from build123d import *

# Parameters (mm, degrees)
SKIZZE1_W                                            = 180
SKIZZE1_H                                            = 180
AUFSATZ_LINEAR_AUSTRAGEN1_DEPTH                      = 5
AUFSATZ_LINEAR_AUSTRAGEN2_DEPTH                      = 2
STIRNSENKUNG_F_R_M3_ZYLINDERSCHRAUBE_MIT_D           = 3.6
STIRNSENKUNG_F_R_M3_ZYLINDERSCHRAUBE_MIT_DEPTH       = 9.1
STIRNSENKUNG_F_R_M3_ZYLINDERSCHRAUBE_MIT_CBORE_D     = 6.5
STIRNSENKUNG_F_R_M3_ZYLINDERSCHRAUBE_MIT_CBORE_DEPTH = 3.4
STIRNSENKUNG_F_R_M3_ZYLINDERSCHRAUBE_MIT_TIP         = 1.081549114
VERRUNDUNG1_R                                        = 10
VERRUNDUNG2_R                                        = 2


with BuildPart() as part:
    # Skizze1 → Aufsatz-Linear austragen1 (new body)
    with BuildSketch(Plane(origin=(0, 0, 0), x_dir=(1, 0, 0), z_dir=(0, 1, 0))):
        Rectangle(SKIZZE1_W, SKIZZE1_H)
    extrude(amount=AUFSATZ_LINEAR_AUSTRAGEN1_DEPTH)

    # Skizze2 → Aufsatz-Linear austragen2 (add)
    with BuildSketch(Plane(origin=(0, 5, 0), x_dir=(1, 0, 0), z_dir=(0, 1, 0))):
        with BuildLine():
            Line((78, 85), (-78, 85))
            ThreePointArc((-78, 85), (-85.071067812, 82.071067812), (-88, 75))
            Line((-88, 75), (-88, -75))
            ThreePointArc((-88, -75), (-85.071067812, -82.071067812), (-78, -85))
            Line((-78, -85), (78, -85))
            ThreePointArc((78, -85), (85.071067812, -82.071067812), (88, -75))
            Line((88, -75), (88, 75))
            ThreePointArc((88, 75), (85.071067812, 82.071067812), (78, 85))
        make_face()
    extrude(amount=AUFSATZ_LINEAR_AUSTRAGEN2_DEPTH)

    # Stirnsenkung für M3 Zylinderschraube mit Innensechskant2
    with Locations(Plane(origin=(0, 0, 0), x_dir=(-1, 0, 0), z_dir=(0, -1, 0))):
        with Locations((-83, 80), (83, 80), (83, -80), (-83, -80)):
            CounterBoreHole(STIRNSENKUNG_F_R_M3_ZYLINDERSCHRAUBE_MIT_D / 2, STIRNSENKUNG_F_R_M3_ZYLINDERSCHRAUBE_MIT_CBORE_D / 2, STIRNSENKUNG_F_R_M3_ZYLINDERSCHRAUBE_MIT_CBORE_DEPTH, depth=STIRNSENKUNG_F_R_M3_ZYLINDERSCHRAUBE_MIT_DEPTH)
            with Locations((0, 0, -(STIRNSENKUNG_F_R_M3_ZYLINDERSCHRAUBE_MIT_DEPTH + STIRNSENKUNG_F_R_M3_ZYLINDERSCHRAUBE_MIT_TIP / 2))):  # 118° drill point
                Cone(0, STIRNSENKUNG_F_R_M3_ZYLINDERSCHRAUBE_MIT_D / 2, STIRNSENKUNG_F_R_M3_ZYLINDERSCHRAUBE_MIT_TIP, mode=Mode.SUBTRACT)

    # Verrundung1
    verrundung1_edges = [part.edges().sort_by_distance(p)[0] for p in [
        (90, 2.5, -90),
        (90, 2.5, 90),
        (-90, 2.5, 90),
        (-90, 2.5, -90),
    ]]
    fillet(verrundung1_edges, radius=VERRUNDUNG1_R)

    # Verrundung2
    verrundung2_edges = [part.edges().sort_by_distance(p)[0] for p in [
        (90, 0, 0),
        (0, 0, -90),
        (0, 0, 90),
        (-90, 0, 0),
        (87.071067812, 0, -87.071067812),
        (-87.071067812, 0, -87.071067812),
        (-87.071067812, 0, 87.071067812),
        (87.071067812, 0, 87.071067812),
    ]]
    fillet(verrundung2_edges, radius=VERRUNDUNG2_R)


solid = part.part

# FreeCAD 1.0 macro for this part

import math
import FreeCAD as App
import Part
import Sketcher


def edges_at(feature, points):
    """Names of the edges that pass closest to the given points."""
    edges = feature.Shape.Edges
    near = lambda p: min(range(len(edges)), key=lambda i: edges[i].distToShape(Part.Vertex(*p))[0])
    return sorted({f"Edge{near(p) + 1}" for p in points})

doc = App.newDocument("Part")
body = doc.addObject("PartDesign::Body", "Body")

sketch1 = doc.addObject("Sketcher::SketchObject", "Sketch")
body.addObject(sketch1)
sketch1.AttachmentSupport = (doc.XZ_Plane, [""])
sketch1.MapMode = "FlatFace"
sketch1.addGeometry(Part.LineSegment(App.Vector(-90, -90, 0), App.Vector(-90, 90, 0)), False)
sketch1.addGeometry(Part.LineSegment(App.Vector(-90, 90, 0), App.Vector(90, 90, 0)), False)
sketch1.addGeometry(Part.LineSegment(App.Vector(90, 90, 0), App.Vector(90, -90, 0)), False)
sketch1.addGeometry(Part.LineSegment(App.Vector(90, -90, 0), App.Vector(-90, -90, 0)), False)
sketch1.addConstraint(Sketcher.Constraint("Coincident", 0, 2, 1, 1))
sketch1.addConstraint(Sketcher.Constraint("Coincident", 1, 2, 2, 1))
sketch1.addConstraint(Sketcher.Constraint("Coincident", 2, 2, 3, 1))
sketch1.addConstraint(Sketcher.Constraint("Coincident", 3, 2, 0, 1))
sketch1.addConstraint(Sketcher.Constraint("Vertical", 0))
sketch1.addConstraint(Sketcher.Constraint("Horizontal", 1))
sketch1.addConstraint(Sketcher.Constraint("Vertical", 2))
sketch1.addConstraint(Sketcher.Constraint("Horizontal", 3))
sketch1.addConstraint(Sketcher.Constraint("Symmetric", 0, 2, 2, 2, -1, 1))
sketch1.addConstraint(Sketcher.Constraint("Equal", 3, 0))
sketch1.addConstraint(Sketcher.Constraint("DistanceX", 1, 1, 1, 2, 180.0))
pad1 = doc.addObject("PartDesign::Pad", "Pad")
body.addObject(pad1)
pad1.Profile = sketch1
pad1.Length = 5
pad1.Reversed = True

sketch2 = doc.addObject("Sketcher::SketchObject", "Sketch001")
body.addObject(sketch2)
sketch2.AttachmentSupport = (doc.XZ_Plane, [""])
sketch2.MapMode = "FlatFace"
sketch2.AttachmentOffset = App.Placement(App.Vector(0, 0, -5), App.Rotation())
sketch2.addGeometry(Part.LineSegment(App.Vector(78, -85, 0), App.Vector(-78, -85, 0)), False)
sketch2.addGeometry(Part.ArcOfCircle(Part.Circle(App.Vector(-78, -75, 0), App.Vector(0, 0, 1), 10), math.radians(180), math.radians(270)), False)
sketch2.addGeometry(Part.LineSegment(App.Vector(-88, -75, 0), App.Vector(-88, 75, 0)), False)
sketch2.addGeometry(Part.ArcOfCircle(Part.Circle(App.Vector(-78, 75, 0), App.Vector(0, 0, 1), 10), math.radians(90), math.radians(180)), False)
sketch2.addGeometry(Part.LineSegment(App.Vector(-78, 85, 0), App.Vector(78, 85, 0)), False)
sketch2.addGeometry(Part.ArcOfCircle(Part.Circle(App.Vector(78, 75, 0), App.Vector(0, 0, 1), 10), math.radians(0), math.radians(90)), False)
sketch2.addGeometry(Part.LineSegment(App.Vector(88, 75, 0), App.Vector(88, -75, 0)), False)
sketch2.addGeometry(Part.ArcOfCircle(Part.Circle(App.Vector(78, -75, 0), App.Vector(0, 0, 1), 10), math.radians(-90), math.radians(0)), False)
sketch2.addConstraint(Sketcher.Constraint("Tangent", 0, 2, 1, 2))
sketch2.addConstraint(Sketcher.Constraint("Tangent", 1, 1, 2, 1))
sketch2.addConstraint(Sketcher.Constraint("Tangent", 2, 2, 3, 2))
sketch2.addConstraint(Sketcher.Constraint("Tangent", 3, 1, 4, 1))
sketch2.addConstraint(Sketcher.Constraint("Tangent", 4, 2, 5, 2))
sketch2.addConstraint(Sketcher.Constraint("Tangent", 5, 1, 6, 1))
sketch2.addConstraint(Sketcher.Constraint("Tangent", 6, 2, 7, 2))
sketch2.addConstraint(Sketcher.Constraint("Tangent", 7, 1, 0, 1))
sketch2.addConstraint(Sketcher.Constraint("Horizontal", 0))
sketch2.addConstraint(Sketcher.Constraint("Vertical", 2))
sketch2.addConstraint(Sketcher.Constraint("Horizontal", 4))
sketch2.addConstraint(Sketcher.Constraint("Vertical", 6))
sketch2.addConstraint(Sketcher.Constraint("Equal", 1, 3))
sketch2.addConstraint(Sketcher.Constraint("Equal", 3, 5))
sketch2.addConstraint(Sketcher.Constraint("Equal", 5, 7))
sketch2.addConstraint(Sketcher.Constraint("Symmetric", 1, 3, 5, 3, -1, 1))
sketch2.addConstraint(Sketcher.Constraint("Radius", 1, 10.0))
sketch2.addConstraint(Sketcher.Constraint("DistanceX", 0, 2, 0, 1, 156.0))
sketch2.addConstraint(Sketcher.Constraint("DistanceY", 2, 1, 2, 2, 150.0))
pad2 = doc.addObject("PartDesign::Pad", "Pad001")
body.addObject(pad2)
pad2.Profile = sketch2
pad2.Length = 2
pad2.Reversed = True

sketch3 = doc.addObject("Sketcher::SketchObject", "Sketch002")
body.addObject(sketch3)
sketch3.AttachmentSupport = (doc.XZ_Plane, [""])
sketch3.MapMode = "FlatFace"
sketch3.addGeometry(Part.Circle(App.Vector(83, -80, 0), App.Vector(0, 0, 1), 1.8), False)
sketch3.addGeometry(Part.Circle(App.Vector(-83, -80, 0), App.Vector(0, 0, 1), 1.8), False)
sketch3.addGeometry(Part.Circle(App.Vector(-83, 80, 0), App.Vector(0, 0, 1), 1.8), False)
sketch3.addGeometry(Part.Circle(App.Vector(83, 80, 0), App.Vector(0, 0, 1), 1.8), False)
sketch3.addConstraint(Sketcher.Constraint("Equal", 0, 1))
sketch3.addConstraint(Sketcher.Constraint("Equal", 1, 2))
sketch3.addConstraint(Sketcher.Constraint("Equal", 2, 3))
sketch3.addConstraint(Sketcher.Constraint("Symmetric", 0, 3, 2, 3, -1, 1))
sketch3.addConstraint(Sketcher.Constraint("Symmetric", 1, 3, 3, 3, -1, 1))
sketch3.addConstraint(Sketcher.Constraint("Symmetric", 0, 3, 1, 3, -2))
sketch3.addConstraint(Sketcher.Constraint("Diameter", 0, 3.6))
sketch3.addConstraint(Sketcher.Constraint("DistanceX", -1, 1, 0, 3, 83.0))
sketch3.addConstraint(Sketcher.Constraint("DistanceY", 0, 3, -1, 1, 80.0))
doc.recompute()
hole = doc.addObject("PartDesign::Hole", "Hole")
body.addObject(hole)
hole.Profile = sketch3
hole.ThreadType = "None"
hole.Diameter = 3.6
hole.DepthType = "Dimension"
hole.Depth = 9.1
hole.DrillPoint = "Angled"
hole.DrillPointAngle = 118
hole.HoleCutType = "Counterbore"
hole.HoleCutDiameter = 6.5
hole.HoleCutDepth = 3.4
doc.recompute()

fillet = doc.addObject("PartDesign::Fillet", "Fillet")
body.addObject(fillet)
fillet.Base = (hole, edges_at(hole, [
    (90, 2.5, -90),
    (90, 2.5, 90),
    (-90, 2.5, 90),
    (-90, 2.5, -90),
]))
fillet.Radius = 10
doc.recompute()

fillet2 = doc.addObject("PartDesign::Fillet", "Fillet001")
body.addObject(fillet2)
fillet2.Base = (fillet, edges_at(fillet, [
    (90, 0, 0),
    (0, 0, -90),
    (0, 0, 90),
    (-90, 0, 0),
    (87.071, 0, -87.071),
    (-87.071, 0, -87.071),
    (-87.071, 0, 87.071),
    (87.071, 0, 87.071),
]))
fillet2.Radius = 2

doc.recompute()
